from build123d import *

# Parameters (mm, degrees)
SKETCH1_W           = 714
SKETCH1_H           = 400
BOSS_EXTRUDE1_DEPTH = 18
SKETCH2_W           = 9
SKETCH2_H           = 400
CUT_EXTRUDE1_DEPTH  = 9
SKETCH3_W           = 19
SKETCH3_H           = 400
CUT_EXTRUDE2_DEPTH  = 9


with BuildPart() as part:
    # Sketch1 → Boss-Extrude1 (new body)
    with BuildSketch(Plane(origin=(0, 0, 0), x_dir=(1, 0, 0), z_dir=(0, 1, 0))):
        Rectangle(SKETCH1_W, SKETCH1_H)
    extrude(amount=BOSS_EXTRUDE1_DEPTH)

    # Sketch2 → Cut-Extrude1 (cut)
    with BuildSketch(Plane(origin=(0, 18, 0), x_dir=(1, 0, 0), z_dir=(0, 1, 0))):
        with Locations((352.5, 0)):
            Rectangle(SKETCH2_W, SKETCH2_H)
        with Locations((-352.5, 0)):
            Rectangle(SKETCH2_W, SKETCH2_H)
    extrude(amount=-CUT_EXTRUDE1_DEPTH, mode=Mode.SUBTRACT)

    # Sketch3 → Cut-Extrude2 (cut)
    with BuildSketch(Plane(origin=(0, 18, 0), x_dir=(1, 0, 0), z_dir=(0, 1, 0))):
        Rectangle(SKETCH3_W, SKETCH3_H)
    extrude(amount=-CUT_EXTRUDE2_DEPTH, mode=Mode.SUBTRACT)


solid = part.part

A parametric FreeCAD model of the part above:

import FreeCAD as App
import Part
import Sketcher

V = App.Vector

doc = App.newDocument("Part")
body = doc.addObject("PartDesign::Body", "Body")

# Sketch on XZ plane
sketch1 = body.newObject("Sketcher::SketchObject", "Sketch")
sketch1.AttachmentSupport = (doc.getObject("XZ_Plane"), [""])
sketch1.MapMode = "FlatFace"
sketch1.addGeometry(Part.LineSegment(V(-357, -200, 0), V(-357, 200, 0)), False)
sketch1.addGeometry(Part.LineSegment(V(-357, 200, 0), V(357, 200, 0)), False)
sketch1.addGeometry(Part.LineSegment(V(357, 200, 0), V(357, -200, 0)), False)
sketch1.addGeometry(Part.LineSegment(V(357, -200, 0), V(-357, -200, 0)), False)
sketch1.addConstraint(Sketcher.Constraint("Coincident", 0, 2, 1, 1))
sketch1.addConstraint(Sketcher.Constraint("Coincident", 1, 2, 2, 1))
sketch1.addConstraint(Sketcher.Constraint("Coincident", 2, 2, 3, 1))
sketch1.addConstraint(Sketcher.Constraint("Coincident", 3, 2, 0, 1))
sketch1.addConstraint(Sketcher.Constraint("Vertical", 0))
sketch1.addConstraint(Sketcher.Constraint("Horizontal", 1))
sketch1.addConstraint(Sketcher.Constraint("Vertical", 2))
sketch1.addConstraint(Sketcher.Constraint("Horizontal", 3))
sketch1.addConstraint(Sketcher.Constraint("Symmetric", 0, 2, 2, 2, -1, 1))
sketch1.addConstraint(Sketcher.Constraint("DistanceX", 1, 1, 1, 2, 714.0))
sketch1.addConstraint(Sketcher.Constraint("DistanceY", 0, 1, 0, 2, 400.0))
pad1 = body.newObject("PartDesign::Pad", "Pad")
pad1.Profile = sketch1
pad1.Length = 18
pad1.Reversed = True

# Sketch on XZ plane
sketch2 = body.newObject("Sketcher::SketchObject", "Sketch001")
sketch2.AttachmentSupport = (doc.getObject("XZ_Plane"), [""])
sketch2.MapMode = "FlatFace"
sketch2.AttachmentOffset = App.Placement(V(0, 0, -18), App.Rotation())
sketch2.addGeometry(Part.LineSegment(V(348, -200, 0), V(348, 200, 0)), False)
sketch2.addGeometry(Part.LineSegment(V(348, 200, 0), V(357, 200, 0)), False)
sketch2.addGeometry(Part.LineSegment(V(357, 200, 0), V(357, -200, 0)), False)
sketch2.addGeometry(Part.LineSegment(V(357, -200, 0), V(348, -200, 0)), False)
sketch2.addGeometry(Part.LineSegment(V(-357, -200, 0), V(-357, 200, 0)), False)
sketch2.addGeometry(Part.LineSegment(V(-357, 200, 0), V(-348, 200, 0)), False)
sketch2.addGeometry(Part.LineSegment(V(-348, 200, 0), V(-348, -200, 0)), False)
sketch2.addGeometry(Part.LineSegment(V(-348, -200, 0), V(-357, -200, 0)), False)
sketch2.addConstraint(Sketcher.Constraint("Coincident", 0, 2, 1, 1))
sketch2.addConstraint(Sketcher.Constraint("Coincident", 1, 2, 2, 1))
sketch2.addConstraint(Sketcher.Constraint("Coincident", 2, 2, 3, 1))
sketch2.addConstraint(Sketcher.Constraint("Coincident", 3, 2, 0, 1))
sketch2.addConstraint(Sketcher.Constraint("Coincident", 4, 2, 5, 1))
sketch2.addConstraint(Sketcher.Constraint("Coincident", 5, 2, 6, 1))
sketch2.addConstraint(Sketcher.Constraint("Coincident", 6, 2, 7, 1))
sketch2.addConstraint(Sketcher.Constraint("Coincident", 7, 2, 4, 1))
sketch2.addConstraint(Sketcher.Constraint("Vertical", 0))
sketch2.addConstraint(Sketcher.Constraint("Horizontal", 1))
sketch2.addConstraint(Sketcher.Constraint("Vertical", 2))
sketch2.addConstraint(Sketcher.Constraint("Horizontal", 3))
sketch2.addConstraint(Sketcher.Constraint("Vertical", 4))
sketch2.addConstraint(Sketcher.Constraint("Horizontal", 5))
sketch2.addConstraint(Sketcher.Constraint("Vertical", 6))
sketch2.addConstraint(Sketcher.Constraint("Horizontal", 7))
sketch2.addConstraint(Sketcher.Constraint("Symmetric", 2, 2, 4, 2, -1, 1))
sketch2.addConstraint(Sketcher.Constraint("Symmetric", 0, 2, 6, 2, -1, 1))
sketch2.addConstraint(Sketcher.Constraint("Horizontal", 1, 2, 4, 2))
sketch2.addConstraint(Sketcher.Constraint("DistanceX", 1, 1, 1, 2, 9.0))
sketch2.addConstraint(Sketcher.Constraint("DistanceY", 0, 1, 0, 2, 400.0))
sketch2.addConstraint(Sketcher.Constraint("DistanceX", -1, 1, 0, 2, 348.0))
pocket1 = body.newObject("PartDesign::Pocket", "Pocket")
pocket1.Profile = sketch2
pocket1.Length = 9
pocket1.Reversed = True

# Sketch on XZ plane
sketch3 = body.newObject("Sketcher::SketchObject", "Sketch002")
sketch3.AttachmentSupport = (doc.getObject("XZ_Plane"), [""])
sketch3.MapMode = "FlatFace"
sketch3.AttachmentOffset = App.Placement(V(0, 0, -18), App.Rotation())
sketch3.addGeometry(Part.LineSegment(V(-10, -200, 0), V(-10, 200, 0)), False)
sketch3.addGeometry(Part.LineSegment(V(-10, 200, 0), V(10, 200, 0)), False)
sketch3.addGeometry(Part.LineSegment(V(10, 200, 0), V(10, -200, 0)), False)
sketch3.addGeometry(Part.LineSegment(V(10, -200, 0), V(-10, -200, 0)), False)
sketch3.addConstraint(Sketcher.Constraint("Coincident", 0, 2, 1, 1))
sketch3.addConstraint(Sketcher.Constraint("Coincident", 1, 2, 2, 1))
sketch3.addConstraint(Sketcher.Constraint("Coincident", 2, 2, 3, 1))
sketch3.addConstraint(Sketcher.Constraint("Coincident", 3, 2, 0, 1))
sketch3.addConstraint(Sketcher.Constraint("Vertical", 0))
sketch3.addConstraint(Sketcher.Constraint("Horizontal", 1))
sketch3.addConstraint(Sketcher.Constraint("Vertical", 2))
sketch3.addConstraint(Sketcher.Constraint("Horizontal", 3))
sketch3.addConstraint(Sketcher.Constraint("Symmetric", 0, 2, 2, 2, -1, 1))
sketch3.addConstraint(Sketcher.Constraint("DistanceX", 1, 1, 1, 2, 19.0))
sketch3.addConstraint(Sketcher.Constraint("DistanceY", 0, 1, 0, 2, 400.0))
pocket2 = body.newObject("PartDesign::Pocket", "Pocket001")
pocket2.Profile = sketch3
pocket2.Length = 9
pocket2.Reversed = True

doc.recompute()
